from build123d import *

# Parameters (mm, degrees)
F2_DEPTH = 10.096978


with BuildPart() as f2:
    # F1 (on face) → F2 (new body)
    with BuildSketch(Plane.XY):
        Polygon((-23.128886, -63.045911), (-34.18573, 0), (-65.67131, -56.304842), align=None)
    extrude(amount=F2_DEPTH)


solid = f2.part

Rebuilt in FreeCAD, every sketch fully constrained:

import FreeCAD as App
import Part
import Sketcher

V = App.Vector


def add_polygon(sketch, points):
    """Adds a closed chain of lines whose ends are joined by coincident constraints."""
    first, n = sketch.GeometryCount, len(points)
    for a, b in zip(points, points[1:] + points[:1]):
        sketch.addGeometry(Part.LineSegment(App.Vector(*a, 0), App.Vector(*b, 0)), False)
    for i in range(n):
        sketch.addConstraint(Sketcher.Constraint("Coincident", first + i, 2, first + (i + 1) % n, 1))

doc = App.newDocument("Part")
body = doc.addObject("PartDesign::Body", "Body")

sketch1 = body.newObject("Sketcher::SketchObject", "Sketch")
sketch1.AttachmentSupport = (doc.getObject("XY_Plane"), [""])
sketch1.MapMode = "FlatFace"
add_polygon(sketch1, [(-23.128886, -63.045911), (-34.18573, 0), (-65.67131, -56.304842)])
sketch1.addConstraint(Sketcher.Constraint("PointOnObject", 0, 2, -1))
sketch1.addConstraint(Sketcher.Constraint("Distance", 0, 64.00813))
sketch1.addConstraint(Sketcher.Constraint("Distance", 2, 43.073192))
sketch1.addConstraint(Sketcher.Constraint("DistanceX", 0, 2, -1, 1, 34.18573))
sketch1.addConstraint(Sketcher.Constraint("DistanceX", 1, 2, -1, 1, 65.67131))
sketch1.addConstraint(Sketcher.Constraint("DistanceY", 2, 2, -1, 1, 63.045911))
pad1 = body.newObject("PartDesign::Pad", "Pad")
pad1.Profile = sketch1
pad1.Length = 10.096978

doc.recompute()
